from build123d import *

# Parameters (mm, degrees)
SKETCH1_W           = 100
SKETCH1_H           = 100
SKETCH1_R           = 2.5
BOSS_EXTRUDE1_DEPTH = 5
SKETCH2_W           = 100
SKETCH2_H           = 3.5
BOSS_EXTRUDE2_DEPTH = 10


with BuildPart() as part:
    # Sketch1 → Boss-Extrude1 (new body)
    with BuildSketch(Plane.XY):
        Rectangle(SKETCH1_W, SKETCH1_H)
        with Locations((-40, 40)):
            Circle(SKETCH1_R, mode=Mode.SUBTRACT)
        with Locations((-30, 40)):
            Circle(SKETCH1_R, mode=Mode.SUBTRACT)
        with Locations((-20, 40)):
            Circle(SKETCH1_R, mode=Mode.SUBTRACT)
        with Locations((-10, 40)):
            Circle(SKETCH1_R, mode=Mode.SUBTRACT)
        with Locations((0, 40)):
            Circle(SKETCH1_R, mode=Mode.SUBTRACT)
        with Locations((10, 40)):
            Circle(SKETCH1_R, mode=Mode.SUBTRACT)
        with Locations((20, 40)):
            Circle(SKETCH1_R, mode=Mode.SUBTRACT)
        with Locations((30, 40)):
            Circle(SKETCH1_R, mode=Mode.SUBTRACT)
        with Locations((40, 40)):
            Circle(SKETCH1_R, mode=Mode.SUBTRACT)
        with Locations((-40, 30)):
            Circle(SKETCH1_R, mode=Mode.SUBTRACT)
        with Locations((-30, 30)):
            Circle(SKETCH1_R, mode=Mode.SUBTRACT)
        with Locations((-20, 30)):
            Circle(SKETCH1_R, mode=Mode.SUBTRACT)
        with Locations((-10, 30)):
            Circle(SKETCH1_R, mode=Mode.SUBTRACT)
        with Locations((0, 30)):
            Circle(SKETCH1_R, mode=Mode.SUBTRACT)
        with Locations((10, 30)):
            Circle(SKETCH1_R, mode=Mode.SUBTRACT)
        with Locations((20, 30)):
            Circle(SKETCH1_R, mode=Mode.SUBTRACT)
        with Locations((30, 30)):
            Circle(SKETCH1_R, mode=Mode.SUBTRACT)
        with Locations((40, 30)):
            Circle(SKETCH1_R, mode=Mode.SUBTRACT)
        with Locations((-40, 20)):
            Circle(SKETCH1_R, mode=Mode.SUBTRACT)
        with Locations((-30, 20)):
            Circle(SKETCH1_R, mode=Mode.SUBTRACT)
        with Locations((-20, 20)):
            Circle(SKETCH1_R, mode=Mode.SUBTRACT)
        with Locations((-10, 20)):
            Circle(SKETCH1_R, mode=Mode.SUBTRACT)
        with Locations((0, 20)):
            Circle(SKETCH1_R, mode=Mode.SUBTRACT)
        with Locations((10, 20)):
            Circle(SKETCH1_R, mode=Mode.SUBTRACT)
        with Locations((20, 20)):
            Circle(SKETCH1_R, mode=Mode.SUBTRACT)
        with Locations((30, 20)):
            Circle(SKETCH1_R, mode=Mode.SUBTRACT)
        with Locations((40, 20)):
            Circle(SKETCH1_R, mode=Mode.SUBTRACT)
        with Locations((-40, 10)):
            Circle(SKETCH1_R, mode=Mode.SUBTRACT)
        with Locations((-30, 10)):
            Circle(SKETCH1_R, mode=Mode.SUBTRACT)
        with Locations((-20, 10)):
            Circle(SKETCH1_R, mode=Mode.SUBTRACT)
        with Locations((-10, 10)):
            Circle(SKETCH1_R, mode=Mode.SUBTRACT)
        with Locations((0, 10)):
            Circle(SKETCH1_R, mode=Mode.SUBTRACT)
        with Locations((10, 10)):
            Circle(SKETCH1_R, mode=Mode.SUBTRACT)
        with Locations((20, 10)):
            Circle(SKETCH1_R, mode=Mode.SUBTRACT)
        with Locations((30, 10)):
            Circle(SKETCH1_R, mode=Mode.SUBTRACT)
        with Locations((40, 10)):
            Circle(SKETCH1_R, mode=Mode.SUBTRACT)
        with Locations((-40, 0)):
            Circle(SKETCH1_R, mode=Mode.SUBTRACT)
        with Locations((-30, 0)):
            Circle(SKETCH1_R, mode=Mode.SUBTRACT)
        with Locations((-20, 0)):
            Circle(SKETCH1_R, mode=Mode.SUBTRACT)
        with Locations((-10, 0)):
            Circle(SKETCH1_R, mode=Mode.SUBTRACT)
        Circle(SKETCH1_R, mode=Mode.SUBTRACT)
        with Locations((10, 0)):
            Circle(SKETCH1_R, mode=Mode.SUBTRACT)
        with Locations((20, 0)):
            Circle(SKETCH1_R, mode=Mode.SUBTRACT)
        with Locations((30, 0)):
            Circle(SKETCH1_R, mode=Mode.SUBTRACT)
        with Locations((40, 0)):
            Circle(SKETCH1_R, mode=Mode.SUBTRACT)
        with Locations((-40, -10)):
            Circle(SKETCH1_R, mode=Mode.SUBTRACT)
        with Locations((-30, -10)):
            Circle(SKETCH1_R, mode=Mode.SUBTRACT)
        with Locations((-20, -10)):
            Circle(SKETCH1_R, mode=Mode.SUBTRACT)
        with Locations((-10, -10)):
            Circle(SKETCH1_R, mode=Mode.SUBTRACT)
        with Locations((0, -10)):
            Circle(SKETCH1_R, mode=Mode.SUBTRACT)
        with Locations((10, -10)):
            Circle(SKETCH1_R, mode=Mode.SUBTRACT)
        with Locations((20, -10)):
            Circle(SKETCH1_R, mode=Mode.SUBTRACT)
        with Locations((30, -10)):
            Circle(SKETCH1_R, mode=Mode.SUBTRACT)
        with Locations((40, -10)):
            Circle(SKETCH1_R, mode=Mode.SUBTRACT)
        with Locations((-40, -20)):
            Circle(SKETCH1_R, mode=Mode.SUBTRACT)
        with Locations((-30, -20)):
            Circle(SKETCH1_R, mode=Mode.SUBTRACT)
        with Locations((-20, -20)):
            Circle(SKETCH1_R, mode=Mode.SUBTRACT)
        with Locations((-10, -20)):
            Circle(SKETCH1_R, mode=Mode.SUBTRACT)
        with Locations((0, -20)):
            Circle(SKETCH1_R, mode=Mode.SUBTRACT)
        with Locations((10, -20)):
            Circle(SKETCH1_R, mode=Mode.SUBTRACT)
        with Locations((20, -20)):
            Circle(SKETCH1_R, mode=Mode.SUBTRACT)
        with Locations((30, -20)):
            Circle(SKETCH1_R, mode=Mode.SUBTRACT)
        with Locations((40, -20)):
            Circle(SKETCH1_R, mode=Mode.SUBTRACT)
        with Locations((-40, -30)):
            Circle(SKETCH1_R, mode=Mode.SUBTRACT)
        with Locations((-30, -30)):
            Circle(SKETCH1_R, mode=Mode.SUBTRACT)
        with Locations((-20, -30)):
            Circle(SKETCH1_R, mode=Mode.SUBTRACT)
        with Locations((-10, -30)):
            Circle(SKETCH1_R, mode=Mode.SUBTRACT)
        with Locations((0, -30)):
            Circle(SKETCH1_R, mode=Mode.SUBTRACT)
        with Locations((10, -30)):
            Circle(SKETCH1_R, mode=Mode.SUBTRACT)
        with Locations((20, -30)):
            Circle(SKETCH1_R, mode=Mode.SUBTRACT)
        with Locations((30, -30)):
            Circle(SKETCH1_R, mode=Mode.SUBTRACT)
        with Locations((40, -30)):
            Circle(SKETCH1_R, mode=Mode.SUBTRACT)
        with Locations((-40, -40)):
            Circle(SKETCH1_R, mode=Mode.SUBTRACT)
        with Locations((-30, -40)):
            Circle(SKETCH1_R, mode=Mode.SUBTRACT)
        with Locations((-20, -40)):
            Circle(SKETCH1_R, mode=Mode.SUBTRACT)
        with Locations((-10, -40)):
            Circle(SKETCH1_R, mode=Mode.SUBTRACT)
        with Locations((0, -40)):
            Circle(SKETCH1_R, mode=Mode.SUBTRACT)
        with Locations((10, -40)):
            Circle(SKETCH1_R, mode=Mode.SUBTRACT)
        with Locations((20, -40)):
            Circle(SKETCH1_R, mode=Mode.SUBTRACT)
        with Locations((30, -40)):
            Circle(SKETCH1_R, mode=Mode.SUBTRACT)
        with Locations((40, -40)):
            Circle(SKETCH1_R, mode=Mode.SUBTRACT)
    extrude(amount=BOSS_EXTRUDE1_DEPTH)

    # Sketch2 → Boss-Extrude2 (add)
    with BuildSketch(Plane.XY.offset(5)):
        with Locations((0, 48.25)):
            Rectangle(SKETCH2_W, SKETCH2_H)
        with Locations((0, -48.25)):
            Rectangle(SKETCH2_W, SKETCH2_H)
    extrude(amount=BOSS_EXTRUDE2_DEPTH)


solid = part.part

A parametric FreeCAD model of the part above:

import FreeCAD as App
import Part
import Sketcher

V = App.Vector

doc = App.newDocument("Part")
body = doc.addObject("PartDesign::Body", "Body")

sketch1 = body.newObject("Sketcher::SketchObject", "Sketch")
sketch1.AttachmentSupport = (doc.getObject("XY_Plane"), [""])
sketch1.MapMode = "FlatFace"
sketch1.addGeometry([
    Part.LineSegment(V(-50, 50, 0), V(-50, -50, 0)),
    Part.LineSegment(V(-50, -50, 0), V(50, -50, 0)),
    Part.LineSegment(V(50, -50, 0), V(50, 50, 0)),
    Part.LineSegment(V(50, 50, 0), V(-50, 50, 0)),
    Part.Circle(V(-40, -40, 0), V(0, 0, 1), 2.5),
    Part.Circle(V(-30, -40, 0), V(0, 0, 1), 2.5),
    Part.Circle(V(-40, -30, 0), V(0, 0, 1), 2.5),
    Part.Circle(V(-30, -30, 0), V(0, 0, 1), 2.5),
    Part.Circle(V(-20, -40, 0), V(0, 0, 1), 2.5),
    Part.Circle(V(-10, -40, 0), V(0, 0, 1), 2.5),
    Part.Circle(V(-20, -30, 0), V(0, 0, 1), 2.5),
    Part.Circle(V(-10, -30, 0), V(0, 0, 1), 2.5),
    Part.Circle(V(-40, -20, 0), V(0, 0, 1), 2.5),
    Part.Circle(V(-30, -20, 0), V(0, 0, 1), 2.5),
    Part.Circle(V(-40, -10, 0), V(0, 0, 1), 2.5),
    Part.Circle(V(-30, -10, 0), V(0, 0, 1), 2.5),
    Part.Circle(V(-20, -20, 0), V(0, 0, 1), 2.5),
    Part.Circle(V(-10, -20, 0), V(0, 0, 1), 2.5),
    Part.Circle(V(-20, -10, 0), V(0, 0, 1), 2.5),
    Part.Circle(V(-10, -10, 0), V(0, 0, 1), 2.5),
    Part.Circle(V(0, -40, 0), V(0, 0, 1), 2.5),
    Part.Circle(V(10, -40, 0), V(0, 0, 1), 2.5),
    Part.Circle(V(20, -40, 0), V(0, 0, 1), 2.5),
    Part.Circle(V(0, -30, 0), V(0, 0, 1), 2.5),
    Part.Circle(V(10, -30, 0), V(0, 0, 1), 2.5),
    Part.Circle(V(20, -30, 0), V(0, 0, 1), 2.5),
    Part.Circle(V(30, -40, 0), V(0, 0, 1), 2.5),
    Part.Circle(V(40, -40, 0), V(0, 0, 1), 2.5),
    Part.Circle(V(30, -30, 0), V(0, 0, 1), 2.5),
    Part.Circle(V(40, -30, 0), V(0, 0, 1), 2.5),
    Part.Circle(V(0, -20, 0), V(0, 0, 1), 2.5),
    Part.Circle(V(10, -20, 0), V(0, 0, 1), 2.5),
    Part.Circle(V(20, -20, 0), V(0, 0, 1), 2.5),
    Part.Circle(V(0, -10, 0), V(0, 0, 1), 2.5),
    Part.Circle(V(10, -10, 0), V(0, 0, 1), 2.5),
    Part.Circle(V(20, -10, 0), V(0, 0, 1), 2.5),
    Part.Circle(V(30, -20, 0), V(0, 0, 1), 2.5),
    Part.Circle(V(40, -20, 0), V(0, 0, 1), 2.5),
    Part.Circle(V(30, -10, 0), V(0, 0, 1), 2.5),
    Part.Circle(V(40, -10, 0), V(0, 0, 1), 2.5),
    Part.Circle(V(-40, 0, 0), V(0, 0, 1), 2.5),
    Part.Circle(V(-40, 10, 0), V(0, 0, 1), 2.5),
    Part.Circle(V(-30, 0, 0), V(0, 0, 1), 2.5),
    Part.Circle(V(-30, 10, 0), V(0, 0, 1), 2.5),
    Part.Circle(V(-40, 20, 0), V(0, 0, 1), 2.5),
    Part.Circle(V(-30, 20, 0), V(0, 0, 1), 2.5),
    Part.Circle(V(-20, 0, 0), V(0, 0, 1), 2.5),
    Part.Circle(V(-20, 10, 0), V(0, 0, 1), 2.5),
    Part.Circle(V(-10, 0, 0), V(0, 0, 1), 2.5),
    Part.Circle(V(-10, 10, 0), V(0, 0, 1), 2.5),
    Part.Circle(V(-20, 20, 0), V(0, 0, 1), 2.5),
    Part.Circle(V(-10, 20, 0), V(0, 0, 1), 2.5),
    Part.Circle(V(-40, 30, 0), V(0, 0, 1), 2.5),
    Part.Circle(V(-30, 30, 0), V(0, 0, 1), 2.5),
    Part.Circle(V(-40, 40, 0), V(0, 0, 1), 2.5),
    Part.Circle(V(-30, 40, 0), V(0, 0, 1), 2.5),
    Part.Circle(V(-20, 30, 0), V(0, 0, 1), 2.5),
    Part.Circle(V(-10, 30, 0), V(0, 0, 1), 2.5),
    Part.Circle(V(-20, 40, 0), V(0, 0, 1), 2.5),
    Part.Circle(V(-10, 40, 0), V(0, 0, 1), 2.5),
    Part.Circle(V(0, 0, 0), V(0, 0, 1), 2.5),
    Part.Circle(V(10, 0, 0), V(0, 0, 1), 2.5),
    Part.Circle(V(0, 10, 0), V(0, 0, 1), 2.5),
    Part.Circle(V(10, 10, 0), V(0, 0, 1), 2.5),
    Part.Circle(V(20, 0, 0), V(0, 0, 1), 2.5),
    Part.Circle(V(20, 10, 0), V(0, 0, 1), 2.5),
    Part.Circle(V(0, 20, 0), V(0, 0, 1), 2.5),
    Part.Circle(V(10, 20, 0), V(0, 0, 1), 2.5),
    Part.Circle(V(20, 20, 0), V(0, 0, 1), 2.5),
    Part.Circle(V(30, 0, 0), V(0, 0, 1), 2.5),
    Part.Circle(V(30, 10, 0), V(0, 0, 1), 2.5),
    Part.Circle(V(40, 0, 0), V(0, 0, 1), 2.5),
    Part.Circle(V(40, 10, 0), V(0, 0, 1), 2.5),
    Part.Circle(V(30, 20, 0), V(0, 0, 1), 2.5),
    Part.Circle(V(40, 20, 0), V(0, 0, 1), 2.5),
    Part.Circle(V(0, 30, 0), V(0, 0, 1), 2.5),
    Part.Circle(V(10, 30, 0), V(0, 0, 1), 2.5),
    Part.Circle(V(20, 30, 0), V(0, 0, 1), 2.5),
    Part.Circle(V(0, 40, 0), V(0, 0, 1), 2.5),
    Part.Circle(V(10, 40, 0), V(0, 0, 1), 2.5),
    Part.Circle(V(20, 40, 0), V(0, 0, 1), 2.5),
    Part.Circle(V(30, 30, 0), V(0, 0, 1), 2.5),
    Part.Circle(V(40, 30, 0), V(0, 0, 1), 2.5),
    Part.Circle(V(30, 40, 0), V(0, 0, 1), 2.5),
    Part.Circle(V(40, 40, 0), V(0, 0, 1), 2.5),
], False)
sketch1.addConstraint([
    Sketcher.Constraint("Coincident", 0, 2, 1, 1),
    Sketcher.Constraint("Coincident", 1, 2, 2, 1),
    Sketcher.Constraint("Coincident", 2, 2, 3, 1),
    Sketcher.Constraint("Coincident", 3, 2, 0, 1),
    Sketcher.Constraint("Vertical", 0),
    Sketcher.Constraint("Horizontal", 1),
    Sketcher.Constraint("Vertical", 2),
    Sketcher.Constraint("Horizontal", 3),
    Sketcher.Constraint("Coincident", 60, 3, -1, 1),
    Sketcher.Constraint("Equal", 4, 5),
    Sketcher.Constraint("Equal", 5, 6),
    Sketcher.Constraint("Equal", 6, 7),
    Sketcher.Constraint("Equal", 7, 8),
    Sketcher.Constraint("Equal", 8, 9),
    Sketcher.Constraint("Equal", 9, 10),
    Sketcher.Constraint("Equal", 10, 11),
    Sketcher.Constraint("Equal", 11, 12),
    Sketcher.Constraint("Equal", 12, 13),
    Sketcher.Constraint("Equal", 13, 14),
    Sketcher.Constraint("Equal", 14, 15),
    Sketcher.Constraint("Equal", 15, 16),
    Sketcher.Constraint("Equal", 16, 17),
    Sketcher.Constraint("Equal", 17, 18),
    Sketcher.Constraint("Equal", 18, 19),
    Sketcher.Constraint("Equal", 19, 20),
    Sketcher.Constraint("Equal", 20, 21),
    Sketcher.Constraint("Equal", 21, 22),
    Sketcher.Constraint("Equal", 22, 23),
    Sketcher.Constraint("Equal", 23, 24),
    Sketcher.Constraint("Equal", 24, 25),
    Sketcher.Constraint("Equal", 25, 26),
    Sketcher.Constraint("Equal", 26, 27),
    Sketcher.Constraint("Equal", 27, 28),
    Sketcher.Constraint("Equal", 28, 29),
    Sketcher.Constraint("Equal", 29, 30),
    Sketcher.Constraint("Equal", 30, 31),
    Sketcher.Constraint("Equal", 31, 32),
    Sketcher.Constraint("Equal", 32, 33),
    Sketcher.Constraint("Equal", 33, 34),
    Sketcher.Constraint("Equal", 34, 35),
    Sketcher.Constraint("Equal", 35, 36),
    Sketcher.Constraint("Equal", 36, 37),
    Sketcher.Constraint("Equal", 37, 38),
    Sketcher.Constraint("Equal", 38, 39),
    Sketcher.Constraint("Equal", 39, 40),
    Sketcher.Constraint("Equal", 40, 41),
    Sketcher.Constraint("Equal", 41, 42),
    Sketcher.Constraint("Equal", 42, 43),
    Sketcher.Constraint("Equal", 43, 44),
    Sketcher.Constraint("Equal", 44, 45),
    Sketcher.Constraint("Equal", 45, 46),
    Sketcher.Constraint("Equal", 46, 47),
    Sketcher.Constraint("Equal", 47, 48),
    Sketcher.Constraint("Equal", 48, 49),
    Sketcher.Constraint("Equal", 49, 50),
    Sketcher.Constraint("Equal", 50, 51),
    Sketcher.Constraint("Equal", 51, 52),
    Sketcher.Constraint("Equal", 52, 53),
    Sketcher.Constraint("Equal", 53, 54),
    Sketcher.Constraint("Equal", 54, 55),
    Sketcher.Constraint("Equal", 55, 56),
    Sketcher.Constraint("Equal", 56, 57),
    Sketcher.Constraint("Equal", 57, 58),
    Sketcher.Constraint("Equal", 58, 59),
    Sketcher.Constraint("Equal", 59, 60),
    Sketcher.Constraint("Equal", 60, 61),
    Sketcher.Constraint("Equal", 61, 62),
    Sketcher.Constraint("Equal", 62, 63),
    Sketcher.Constraint("Equal", 63, 64),
    Sketcher.Constraint("Equal", 64, 65),
    Sketcher.Constraint("Equal", 65, 66),
    Sketcher.Constraint("Equal", 66, 67),
    Sketcher.Constraint("Equal", 67, 68),
    Sketcher.Constraint("Equal", 68, 69),
    Sketcher.Constraint("Equal", 69, 70),
    Sketcher.Constraint("Equal", 70, 71),
    Sketcher.Constraint("Equal", 71, 72),
    Sketcher.Constraint("Equal", 72, 73),
    Sketcher.Constraint("Equal", 73, 74),
    Sketcher.Constraint("Equal", 74, 75),
    Sketcher.Constraint("Equal", 75, 76),
    Sketcher.Constraint("Equal", 76, 77),
    Sketcher.Constraint("Equal", 77, 78),
    Sketcher.Constraint("Equal", 78, 79),
    Sketcher.Constraint("Equal", 79, 80),
    Sketcher.Constraint("Equal", 80, 81),
    Sketcher.Constraint("Equal", 81, 82),
    Sketcher.Constraint("Equal", 82, 83),
    Sketcher.Constraint("Equal", 83, 84),
    Sketcher.Constraint("Symmetric", 39, 3, 41, 3, -1, 1),
    Sketcher.Constraint("Symmetric", 38, 3, 43, 3, -1, 1),
    Sketcher.Constraint("Symmetric", 37, 3, 44, 3, -1, 1),
    Sketcher.Constraint("Symmetric", 36, 3, 45, 3, -1, 1),
    Sketcher.Constraint("Symmetric", 35, 3, 47, 3, -1, 1),
    Sketcher.Constraint("Symmetric", 34, 3, 49, 3, -1, 1),
    Sketcher.Constraint("Symmetric", 32, 3, 50, 3, -1, 1),
    Sketcher.Constraint("Symmetric", 31, 3, 51, 3, -1, 1),
    Sketcher.Constraint("Symmetric", 29, 3, 52, 3, -1, 1),
    Sketcher.Constraint("Symmetric", 28, 3, 53, 3, -1, 1),
    Sketcher.Constraint("Symmetric", 27, 3, 54, 3, -1, 1),
    Sketcher.Constraint("Symmetric", 26, 3, 55, 3, -1, 1),
    Sketcher.Constraint("Symmetric", 25, 3, 56, 3, -1, 1),
    Sketcher.Constraint("Symmetric", 24, 3, 57, 3, -1, 1),
    Sketcher.Constraint("Symmetric", 22, 3, 58, 3, -1, 1),
    Sketcher.Constraint("Symmetric", 21, 3, 59, 3, -1, 1),
    Sketcher.Constraint("Symmetric", 48, 3, 61, 3, -1, 1),
    Sketcher.Constraint("Symmetric", 33, 3, 62, 3, -1, 1),
    Sketcher.Constraint("Symmetric", 19, 3, 63, 3, -1, 1),
    Sketcher.Constraint("Symmetric", 46, 3, 64, 3, -1, 1),
    Sketcher.Constraint("Symmetric", 18, 3, 65, 3, -1, 1),
    Sketcher.Constraint("Symmetric", 30, 3, 66, 3, -1, 1),
    Sketcher.Constraint("Symmetric", 17, 3, 67, 3, -1, 1),
    Sketcher.Constraint("Symmetric", 16, 3, 68, 3, -1, 1),
    Sketcher.Constraint("Symmetric", 42, 3, 69, 3, -1, 1),
    Sketcher.Constraint("Symmetric", 15, 3, 70, 3, -1, 1),
    Sketcher.Constraint("Symmetric", 40, 3, 71, 3, -1, 1),
    Sketcher.Constraint("Symmetric", 14, 3, 72, 3, -1, 1),
    Sketcher.Constraint("Symmetric", 13, 3, 73, 3, -1, 1),
    Sketcher.Constraint("Symmetric", 12, 3, 74, 3, -1, 1),
    Sketcher.Constraint("Symmetric", 23, 3, 75, 3, -1, 1),
    Sketcher.Constraint("Symmetric", 11, 3, 76, 3, -1, 1),
    Sketcher.Constraint("Symmetric", 10, 3, 77, 3, -1, 1),
    Sketcher.Constraint("Symmetric", 20, 3, 78, 3, -1, 1),
    Sketcher.Constraint("Symmetric", 9, 3, 79, 3, -1, 1),
    Sketcher.Constraint("Symmetric", 8, 3, 80, 3, -1, 1),
    Sketcher.Constraint("Symmetric", 7, 3, 81, 3, -1, 1),
    Sketcher.Constraint("Symmetric", 6, 3, 82, 3, -1, 1),
    Sketcher.Constraint("Symmetric", 5, 3, 83, 3, -1, 1),
    Sketcher.Constraint("Symmetric", 4, 3, 84, 3, -1, 1),
    Sketcher.Constraint("Symmetric", 0, 2, 2, 2, -1, 1),
    Sketcher.Constraint("Symmetric", 9, 3, 21, 3, -2),
    Sketcher.Constraint("Symmetric", 8, 3, 22, 3, -2),
    Sketcher.Constraint("Symmetric", 11, 3, 24, 3, -2),
    Sketcher.Constraint("Symmetric", 10, 3, 25, 3, -2),
    Sketcher.Constraint("Symmetric", 5, 3, 26, 3, -2),
    Sketcher.Constraint("Symmetric", 4, 3, 27, 3, -2),
    Sketcher.Constraint("Symmetric", 7, 3, 28, 3, -2),
    Sketcher.Constraint("Symmetric", 6, 3, 29, 3, -2),
    Sketcher.Constraint("Symmetric", 17, 3, 31, 3, -2),
    Sketcher.Constraint("Symmetric", 16, 3, 32, 3, -2),
    Sketcher.Constraint("Symmetric", 19, 3, 34, 3, -2),
    Sketcher.Constraint("Symmetric", 18, 3, 35, 3, -2),
    Sketcher.Constraint("Symmetric", 13, 3, 36, 3, -2),
    Sketcher.Constraint("Symmetric", 12, 3, 37, 3, -2),
    Sketcher.Constraint("Symmetric", 15, 3, 38, 3, -2),
    Sketcher.Constraint("Symmetric", 14, 3, 39, 3, -2),
    Sketcher.Constraint("PointOnObject", 20, 3, -2),
    Sketcher.Constraint("PointOnObject", 23, 3, -2),
    Sketcher.Constraint("PointOnObject", 30, 3, -2),
    Sketcher.Constraint("PointOnObject", 33, 3, -2),
    Sketcher.Constraint("PointOnObject", 40, 3, -1),
    Sketcher.Constraint("PointOnObject", 42, 3, -1),
    Sketcher.Constraint("PointOnObject", 46, 3, -1),
    Sketcher.Constraint("PointOnObject", 48, 3, -1),
    Sketcher.Constraint("Horizontal", 4, 3, 5, 3),
    Sketcher.Constraint("Horizontal", 6, 3, 7, 3),
    Sketcher.Constraint("Horizontal", 5, 3, 8, 3),
    Sketcher.Constraint("Horizontal", 8, 3, 9, 3),
    Sketcher.Constraint("Horizontal", 7, 3, 10, 3),
    Sketcher.Constraint("Horizontal", 10, 3, 11, 3),
    Sketcher.Constraint("Horizontal", 12, 3, 13, 3),
    Sketcher.Constraint("Horizontal", 14, 3, 15, 3),
    Sketcher.Constraint("Horizontal", 13, 3, 16, 3),
    Sketcher.Constraint("Horizontal", 16, 3, 17, 3),
    Sketcher.Constraint("Horizontal", 15, 3, 18, 3),
    Sketcher.Constraint("Horizontal", 18, 3, 19, 3),
    Sketcher.Constraint("Horizontal", 9, 3, 20, 3),
    Sketcher.Constraint("Horizontal", 11, 3, 23, 3),
    Sketcher.Constraint("Horizontal", 17, 3, 30, 3),
    Sketcher.Constraint("Horizontal", 19, 3, 33, 3),
    Sketcher.Constraint("Vertical", 4, 3, 6, 3),
    Sketcher.Constraint("Vertical", 5, 3, 7, 3),
    Sketcher.Constraint("Vertical", 8, 3, 10, 3),
    Sketcher.Constraint("Vertical", 9, 3, 11, 3),
    Sketcher.Constraint("Vertical", 6, 3, 12, 3),
    Sketcher.Constraint("Vertical", 7, 3, 13, 3),
    Sketcher.Constraint("Vertical", 12, 3, 14, 3),
    Sketcher.Constraint("Vertical", 13, 3, 15, 3),
    Sketcher.Constraint("Vertical", 10, 3, 16, 3),
    Sketcher.Constraint("Vertical", 11, 3, 17, 3),
    Sketcher.Constraint("Vertical", 16, 3, 18, 3),
    Sketcher.Constraint("Vertical", 17, 3, 19, 3),
    Sketcher.Constraint("Vertical", 14, 3, 40, 3),
    Sketcher.Constraint("Vertical", 15, 3, 42, 3),
    Sketcher.Constraint("Vertical", 18, 3, 46, 3),
    Sketcher.Constraint("Vertical", 19, 3, 48, 3),
    Sketcher.Constraint("Equal", 3, 0),
    Sketcher.Constraint("Diameter", 4, 5.0),
    Sketcher.Constraint("DistanceX", 1, 1, 1, 2, 100.0),
    Sketcher.Constraint("DistanceX", 4, 3, -1, 1, 40.0),
    Sketcher.Constraint("DistanceY", 4, 3, -1, 1, 40.0),
    Sketcher.Constraint("DistanceX", 5, 3, -1, 1, 30.0),
    Sketcher.Constraint("DistanceY", 6, 3, -1, 1, 30.0),
    Sketcher.Constraint("DistanceX", 8, 3, -1, 1, 20.0),
    Sketcher.Constraint("DistanceX", 9, 3, -1, 1, 10.0),
    Sketcher.Constraint("DistanceY", 12, 3, -1, 1, 20.0),
    Sketcher.Constraint("DistanceY", 14, 3, -1, 1, 10.0),
])
pad1 = body.newObject("PartDesign::Pad", "Pad")
pad1.Profile = sketch1
pad1.Length = 5

sketch2 = body.newObject("Sketcher::SketchObject", "Sketch001")
sketch2.AttachmentSupport = (doc.getObject("XY_Plane"), [""])
sketch2.MapMode = "FlatFace"
sketch2.AttachmentOffset = App.Placement(V(0, 0, 5), App.Rotation())
sketch2.addGeometry([
    Part.LineSegment(V(-50, 50, 0), V(-50, 46.5, 0)),
    Part.LineSegment(V(-50, 46.5, 0), V(50, 46.5, 0)),
    Part.LineSegment(V(50, 46.5, 0), V(50, 50, 0)),
    Part.LineSegment(V(50, 50, 0), V(-50, 50, 0)),
    Part.LineSegment(V(-50, -46.5, 0), V(-50, -50, 0)),
    Part.LineSegment(V(-50, -50, 0), V(50, -50, 0)),
    Part.LineSegment(V(50, -50, 0), V(50, -46.5, 0)),
    Part.LineSegment(V(50, -46.5, 0), V(-50, -46.5, 0)),
], False)
sketch2.addConstraint([
    Sketcher.Constraint("Coincident", 0, 2, 1, 1),
    Sketcher.Constraint("Coincident", 1, 2, 2, 1),
    Sketcher.Constraint("Coincident", 2, 2, 3, 1),
    Sketcher.Constraint("Coincident", 3, 2, 0, 1),
    Sketcher.Constraint("Coincident", 4, 2, 5, 1),
    Sketcher.Constraint("Coincident", 5, 2, 6, 1),
    Sketcher.Constraint("Coincident", 6, 2, 7, 1),
    Sketcher.Constraint("Coincident", 7, 2, 4, 1),
    Sketcher.Constraint("Vertical", 0),
    Sketcher.Constraint("Horizontal", 1),
    Sketcher.Constraint("Vertical", 2),
    Sketcher.Constraint("Horizontal", 3),
    Sketcher.Constraint("Vertical", 4),
    Sketcher.Constraint("Horizontal", 5),
    Sketcher.Constraint("Vertical", 6),
    Sketcher.Constraint("Horizontal", 7),
    Sketcher.Constraint("Symmetric", 2, 2, 4, 2, -1, 1),
    Sketcher.Constraint("Symmetric", 0, 2, 6, 2, -1, 1),
    Sketcher.Constraint("Vertical", 3, 2, 4, 2),
    Sketcher.Constraint("DistanceX", 1, 1, 1, 2, 100.0),
    Sketcher.Constraint("DistanceY", 0, 2, 0, 1, 3.5),
    Sketcher.Constraint("DistanceY", -1, 1, 2, 2, 50.0),
])
pad2 = body.newObject("PartDesign::Pad", "Pad001")
pad2.Profile = sketch2
pad2.Length = 10

doc.recompute()
